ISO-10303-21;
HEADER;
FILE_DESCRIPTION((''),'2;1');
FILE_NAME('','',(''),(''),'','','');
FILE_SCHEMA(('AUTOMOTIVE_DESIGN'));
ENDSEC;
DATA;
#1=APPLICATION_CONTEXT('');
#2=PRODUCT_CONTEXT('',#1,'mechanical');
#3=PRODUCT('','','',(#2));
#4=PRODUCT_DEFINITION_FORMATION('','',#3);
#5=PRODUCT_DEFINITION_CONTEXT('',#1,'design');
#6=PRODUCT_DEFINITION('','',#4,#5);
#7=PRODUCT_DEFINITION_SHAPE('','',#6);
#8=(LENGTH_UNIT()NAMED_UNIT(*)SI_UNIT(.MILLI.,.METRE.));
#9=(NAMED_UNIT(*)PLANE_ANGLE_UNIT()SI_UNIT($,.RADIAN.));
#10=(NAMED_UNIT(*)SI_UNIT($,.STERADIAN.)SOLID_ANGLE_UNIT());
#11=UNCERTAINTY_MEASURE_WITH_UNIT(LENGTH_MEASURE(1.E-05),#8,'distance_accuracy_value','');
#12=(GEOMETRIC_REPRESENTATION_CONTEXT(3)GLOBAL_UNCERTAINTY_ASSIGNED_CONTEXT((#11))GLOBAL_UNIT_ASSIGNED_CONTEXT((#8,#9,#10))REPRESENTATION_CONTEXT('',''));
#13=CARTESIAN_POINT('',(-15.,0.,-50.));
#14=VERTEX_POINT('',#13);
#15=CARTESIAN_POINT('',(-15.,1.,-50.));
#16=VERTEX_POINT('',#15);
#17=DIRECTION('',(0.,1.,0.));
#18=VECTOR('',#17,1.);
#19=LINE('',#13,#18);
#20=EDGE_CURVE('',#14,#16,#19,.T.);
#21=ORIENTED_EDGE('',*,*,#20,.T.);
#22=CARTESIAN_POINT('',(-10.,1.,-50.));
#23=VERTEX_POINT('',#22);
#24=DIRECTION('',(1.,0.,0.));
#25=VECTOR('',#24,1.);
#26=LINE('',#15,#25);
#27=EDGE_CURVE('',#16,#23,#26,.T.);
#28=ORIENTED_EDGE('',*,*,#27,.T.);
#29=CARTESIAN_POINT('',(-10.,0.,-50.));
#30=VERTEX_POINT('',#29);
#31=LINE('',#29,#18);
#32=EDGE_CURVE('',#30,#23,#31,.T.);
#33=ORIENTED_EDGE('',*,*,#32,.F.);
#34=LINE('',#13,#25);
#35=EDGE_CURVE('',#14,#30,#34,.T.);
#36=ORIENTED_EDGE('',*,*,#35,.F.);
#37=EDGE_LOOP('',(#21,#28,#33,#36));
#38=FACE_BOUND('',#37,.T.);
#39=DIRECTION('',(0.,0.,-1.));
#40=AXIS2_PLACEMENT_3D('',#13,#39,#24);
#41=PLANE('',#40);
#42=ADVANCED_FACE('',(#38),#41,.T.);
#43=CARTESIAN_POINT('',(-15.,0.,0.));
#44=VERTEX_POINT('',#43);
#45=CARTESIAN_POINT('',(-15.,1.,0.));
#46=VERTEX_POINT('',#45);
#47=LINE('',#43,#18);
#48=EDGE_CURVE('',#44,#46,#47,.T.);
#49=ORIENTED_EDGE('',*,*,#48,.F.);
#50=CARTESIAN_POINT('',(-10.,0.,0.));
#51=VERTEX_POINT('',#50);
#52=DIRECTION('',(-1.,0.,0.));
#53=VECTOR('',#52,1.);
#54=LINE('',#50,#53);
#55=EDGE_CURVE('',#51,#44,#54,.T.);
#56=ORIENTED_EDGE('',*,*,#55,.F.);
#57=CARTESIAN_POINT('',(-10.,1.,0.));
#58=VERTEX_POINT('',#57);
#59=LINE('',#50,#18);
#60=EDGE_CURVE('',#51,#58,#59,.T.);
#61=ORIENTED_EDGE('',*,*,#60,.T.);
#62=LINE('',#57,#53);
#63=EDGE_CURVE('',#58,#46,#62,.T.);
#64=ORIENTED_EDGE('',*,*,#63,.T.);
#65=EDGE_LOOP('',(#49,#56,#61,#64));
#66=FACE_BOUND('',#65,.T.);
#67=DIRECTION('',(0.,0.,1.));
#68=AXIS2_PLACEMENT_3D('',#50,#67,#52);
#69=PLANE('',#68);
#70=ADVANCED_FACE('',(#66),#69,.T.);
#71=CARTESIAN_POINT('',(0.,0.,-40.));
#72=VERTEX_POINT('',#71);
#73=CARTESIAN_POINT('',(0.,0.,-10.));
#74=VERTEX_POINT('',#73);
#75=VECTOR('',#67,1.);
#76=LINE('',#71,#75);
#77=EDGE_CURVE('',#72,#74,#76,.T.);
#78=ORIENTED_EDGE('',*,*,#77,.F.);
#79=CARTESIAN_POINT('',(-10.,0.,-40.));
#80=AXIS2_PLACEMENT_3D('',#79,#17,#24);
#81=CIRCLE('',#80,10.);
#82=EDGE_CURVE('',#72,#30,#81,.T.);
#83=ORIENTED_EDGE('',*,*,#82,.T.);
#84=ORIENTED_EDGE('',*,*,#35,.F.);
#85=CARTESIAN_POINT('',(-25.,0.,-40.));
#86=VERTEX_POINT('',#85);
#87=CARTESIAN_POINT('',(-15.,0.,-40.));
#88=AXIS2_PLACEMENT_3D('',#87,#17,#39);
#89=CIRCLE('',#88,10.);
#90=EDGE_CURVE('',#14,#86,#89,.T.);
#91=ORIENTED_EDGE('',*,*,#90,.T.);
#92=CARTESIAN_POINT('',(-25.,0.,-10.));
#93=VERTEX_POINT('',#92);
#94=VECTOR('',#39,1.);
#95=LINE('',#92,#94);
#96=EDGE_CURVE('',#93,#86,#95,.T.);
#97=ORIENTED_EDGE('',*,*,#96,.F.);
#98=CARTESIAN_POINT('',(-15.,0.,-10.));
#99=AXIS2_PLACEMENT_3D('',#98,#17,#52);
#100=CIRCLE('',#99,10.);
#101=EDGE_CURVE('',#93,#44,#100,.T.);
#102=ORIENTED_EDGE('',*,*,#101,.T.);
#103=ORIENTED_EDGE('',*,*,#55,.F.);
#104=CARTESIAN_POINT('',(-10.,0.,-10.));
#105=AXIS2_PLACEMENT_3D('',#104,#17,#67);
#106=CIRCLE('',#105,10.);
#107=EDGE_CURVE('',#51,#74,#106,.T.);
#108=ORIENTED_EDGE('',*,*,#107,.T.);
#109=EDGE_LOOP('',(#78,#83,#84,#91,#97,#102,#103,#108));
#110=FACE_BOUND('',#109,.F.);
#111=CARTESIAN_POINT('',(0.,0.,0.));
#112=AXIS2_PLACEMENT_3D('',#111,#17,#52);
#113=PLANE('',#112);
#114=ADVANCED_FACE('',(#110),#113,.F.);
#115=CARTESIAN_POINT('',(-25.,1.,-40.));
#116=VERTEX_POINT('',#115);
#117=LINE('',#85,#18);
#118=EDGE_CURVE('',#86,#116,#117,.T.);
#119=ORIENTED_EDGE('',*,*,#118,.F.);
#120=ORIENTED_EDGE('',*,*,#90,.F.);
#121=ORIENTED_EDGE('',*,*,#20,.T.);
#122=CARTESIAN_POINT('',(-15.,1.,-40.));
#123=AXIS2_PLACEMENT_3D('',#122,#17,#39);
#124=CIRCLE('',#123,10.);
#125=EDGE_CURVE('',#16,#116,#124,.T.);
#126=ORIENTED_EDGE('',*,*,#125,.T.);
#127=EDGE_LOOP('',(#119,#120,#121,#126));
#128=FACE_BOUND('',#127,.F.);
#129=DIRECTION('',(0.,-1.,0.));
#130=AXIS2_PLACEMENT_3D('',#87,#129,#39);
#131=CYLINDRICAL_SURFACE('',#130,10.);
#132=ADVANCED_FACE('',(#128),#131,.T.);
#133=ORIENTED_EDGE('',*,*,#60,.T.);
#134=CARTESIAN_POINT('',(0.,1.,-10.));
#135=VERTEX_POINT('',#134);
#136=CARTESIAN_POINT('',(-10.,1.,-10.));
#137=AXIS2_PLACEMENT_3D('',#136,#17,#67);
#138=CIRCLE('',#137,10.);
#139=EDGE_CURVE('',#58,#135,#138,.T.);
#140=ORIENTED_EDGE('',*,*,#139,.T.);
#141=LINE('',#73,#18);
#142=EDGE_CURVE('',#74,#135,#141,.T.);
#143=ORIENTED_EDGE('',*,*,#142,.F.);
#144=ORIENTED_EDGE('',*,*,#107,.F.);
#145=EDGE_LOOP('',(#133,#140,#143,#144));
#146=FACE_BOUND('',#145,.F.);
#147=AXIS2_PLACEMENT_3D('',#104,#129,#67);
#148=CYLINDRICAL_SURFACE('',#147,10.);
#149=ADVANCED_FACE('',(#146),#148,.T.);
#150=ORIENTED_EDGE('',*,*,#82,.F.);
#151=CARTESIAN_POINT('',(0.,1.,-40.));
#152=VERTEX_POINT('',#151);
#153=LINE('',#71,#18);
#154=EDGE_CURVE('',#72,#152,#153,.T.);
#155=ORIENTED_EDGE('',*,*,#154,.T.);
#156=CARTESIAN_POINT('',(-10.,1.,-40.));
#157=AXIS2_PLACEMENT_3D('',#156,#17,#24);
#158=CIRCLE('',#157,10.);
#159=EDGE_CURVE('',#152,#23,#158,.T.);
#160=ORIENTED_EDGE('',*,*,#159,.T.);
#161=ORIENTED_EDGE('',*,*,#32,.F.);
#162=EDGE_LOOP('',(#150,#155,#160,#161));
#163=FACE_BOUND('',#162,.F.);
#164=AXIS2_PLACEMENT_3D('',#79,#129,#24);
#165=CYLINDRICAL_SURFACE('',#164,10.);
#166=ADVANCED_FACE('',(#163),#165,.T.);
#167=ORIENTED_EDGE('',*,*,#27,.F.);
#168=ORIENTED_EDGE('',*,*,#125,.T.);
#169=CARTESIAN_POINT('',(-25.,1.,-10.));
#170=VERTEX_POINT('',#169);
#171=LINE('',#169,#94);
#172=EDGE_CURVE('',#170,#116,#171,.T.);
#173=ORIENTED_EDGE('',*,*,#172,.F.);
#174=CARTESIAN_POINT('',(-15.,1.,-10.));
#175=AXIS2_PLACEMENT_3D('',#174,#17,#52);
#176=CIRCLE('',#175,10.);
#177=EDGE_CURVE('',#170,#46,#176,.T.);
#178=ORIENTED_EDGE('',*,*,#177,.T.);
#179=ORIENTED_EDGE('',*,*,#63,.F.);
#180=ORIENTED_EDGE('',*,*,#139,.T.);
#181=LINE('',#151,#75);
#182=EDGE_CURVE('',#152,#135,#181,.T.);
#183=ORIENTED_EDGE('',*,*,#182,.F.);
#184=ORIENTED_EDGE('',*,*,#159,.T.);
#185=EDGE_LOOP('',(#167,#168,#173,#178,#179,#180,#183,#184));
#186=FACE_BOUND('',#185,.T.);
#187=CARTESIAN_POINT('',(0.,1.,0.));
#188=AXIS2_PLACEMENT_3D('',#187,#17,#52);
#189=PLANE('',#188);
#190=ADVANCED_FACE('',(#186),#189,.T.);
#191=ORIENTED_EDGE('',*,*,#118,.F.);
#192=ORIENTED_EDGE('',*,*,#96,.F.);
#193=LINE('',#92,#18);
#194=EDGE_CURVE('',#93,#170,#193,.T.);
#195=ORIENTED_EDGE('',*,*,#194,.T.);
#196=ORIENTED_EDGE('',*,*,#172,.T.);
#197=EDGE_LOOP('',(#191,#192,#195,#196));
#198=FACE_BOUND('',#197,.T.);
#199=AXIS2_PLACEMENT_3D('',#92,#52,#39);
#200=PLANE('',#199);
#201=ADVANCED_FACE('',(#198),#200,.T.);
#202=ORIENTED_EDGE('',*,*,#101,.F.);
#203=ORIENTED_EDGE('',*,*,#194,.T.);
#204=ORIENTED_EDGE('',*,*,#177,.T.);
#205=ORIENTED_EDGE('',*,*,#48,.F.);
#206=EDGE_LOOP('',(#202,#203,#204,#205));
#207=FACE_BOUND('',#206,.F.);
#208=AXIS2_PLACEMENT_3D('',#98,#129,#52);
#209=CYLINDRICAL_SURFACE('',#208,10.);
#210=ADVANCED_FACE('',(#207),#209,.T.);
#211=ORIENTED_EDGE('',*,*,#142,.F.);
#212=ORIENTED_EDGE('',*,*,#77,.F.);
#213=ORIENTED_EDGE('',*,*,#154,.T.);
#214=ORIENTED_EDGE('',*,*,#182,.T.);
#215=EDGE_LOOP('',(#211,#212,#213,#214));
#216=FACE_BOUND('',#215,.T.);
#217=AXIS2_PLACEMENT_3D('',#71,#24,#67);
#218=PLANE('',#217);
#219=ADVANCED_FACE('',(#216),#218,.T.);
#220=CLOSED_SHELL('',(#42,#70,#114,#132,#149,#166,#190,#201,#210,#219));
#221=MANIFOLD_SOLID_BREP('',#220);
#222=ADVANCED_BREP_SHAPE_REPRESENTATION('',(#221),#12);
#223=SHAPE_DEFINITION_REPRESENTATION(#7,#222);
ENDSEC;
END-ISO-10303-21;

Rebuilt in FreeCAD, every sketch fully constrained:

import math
import FreeCAD as App
import Part
import Sketcher
from FreeCAD import Vector
Q = App.Units.Quantity

doc = App.newDocument("Part")
params = doc.addObject("Spreadsheet::Sheet", "Params")
for row, (alias, value) in enumerate([
    ("sketch1_radius", "10 mm"),
    ("pad1_length", "1 mm"),
], start=1):
    params.set(f"A{row}", alias)
    params.set(f"B{row}", "=" + value)
    params.setAlias(f"B{row}", alias)

body = doc.addObject("PartDesign::Body", "Body")

sketch1 = body.newObject("Sketcher::SketchObject", "Sketch")
sketch1.AttachmentSupport = (doc.getObject("XZ_Plane"), [""])
sketch1.MapMode = "FlatFace"
sketch1.addGeometry([
    Part.LineSegment(Vector(-15, 0, 0), Vector(-10, 0, 0)),
    Part.ArcOfCircle(Part.Circle(Vector(-10, -10, 0), Vector(0, 0, 1), 10), math.radians(0), math.radians(90)),
    Part.LineSegment(Vector(0, -10, 0), Vector(0, -40, 0)),
    Part.ArcOfCircle(Part.Circle(Vector(-10, -40, 0), Vector(0, 0, 1), 10), math.radians(-90), math.radians(0)),
    Part.LineSegment(Vector(-10, -50, 0), Vector(-15, -50, 0)),
    Part.ArcOfCircle(Part.Circle(Vector(-15, -40, 0), Vector(0, 0, 1), 10), math.radians(180), math.radians(270)),
    Part.LineSegment(Vector(-25, -40, 0), Vector(-25, -10, 0)),
    Part.ArcOfCircle(Part.Circle(Vector(-15, -10, 0), Vector(0, 0, 1), 10), math.radians(90), math.radians(180)),
], False)
sketch1.addConstraint([
    Sketcher.Constraint("Tangent", 0, 2, 1, 2),
    Sketcher.Constraint("Tangent", 1, 1, 2, 1),
    Sketcher.Constraint("Tangent", 2, 2, 3, 2),
    Sketcher.Constraint("Tangent", 3, 1, 4, 1),
    Sketcher.Constraint("Tangent", 4, 2, 5, 2),
    Sketcher.Constraint("Tangent", 5, 1, 6, 1),
    Sketcher.Constraint("Tangent", 6, 2, 7, 2),
    Sketcher.Constraint("Tangent", 7, 1, 0, 1),
    Sketcher.Constraint("Horizontal", 0),
    Sketcher.Constraint("Vertical", 2),
    Sketcher.Constraint("Horizontal", 4),
    Sketcher.Constraint("Vertical", 6),
    Sketcher.Constraint("Equal", 1, 3),
    Sketcher.Constraint("Equal", 3, 5),
    Sketcher.Constraint("Equal", 5, 7),
    Sketcher.Constraint("PointOnObject", 0, 2, -1),
    Sketcher.Constraint("PointOnObject", 1, 1, -2),
    Sketcher.Constraint("Radius", 1, Q("10 mm")),
    Sketcher.Constraint("DistanceY", 3, 1, -1, 1, Q("50 mm")),
    Sketcher.Constraint("DistanceX", 5, 1, -1, 1, Q("25 mm")),
])
sketch1.setExpression("Constraints[17]", "Params.sketch1_radius")
pad1 = body.newObject("PartDesign::Pad", "Pad")
pad1.Profile = sketch1
pad1.setExpression("Length", "Params.pad1_length")
pad1.Reversed = True

doc.recompute()
